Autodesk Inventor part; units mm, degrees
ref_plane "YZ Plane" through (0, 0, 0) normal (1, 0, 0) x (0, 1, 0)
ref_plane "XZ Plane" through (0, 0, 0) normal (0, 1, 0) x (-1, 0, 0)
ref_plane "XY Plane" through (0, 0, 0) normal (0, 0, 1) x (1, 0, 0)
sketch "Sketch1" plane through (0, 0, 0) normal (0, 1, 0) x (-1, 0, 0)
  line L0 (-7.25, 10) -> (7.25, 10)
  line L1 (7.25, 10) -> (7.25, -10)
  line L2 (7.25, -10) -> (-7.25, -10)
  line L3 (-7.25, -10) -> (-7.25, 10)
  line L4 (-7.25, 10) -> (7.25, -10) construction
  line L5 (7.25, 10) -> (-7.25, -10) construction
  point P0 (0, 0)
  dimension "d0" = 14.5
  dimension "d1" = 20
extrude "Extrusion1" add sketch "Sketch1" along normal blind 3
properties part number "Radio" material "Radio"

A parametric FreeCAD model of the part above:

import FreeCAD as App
import Part
import Sketcher

V = App.Vector


def add_polygon(sketch, points):
    """Adds a closed chain of lines whose ends are joined by coincident constraints."""
    first, n = sketch.GeometryCount, len(points)
    for a, b in zip(points, points[1:] + points[:1]):
        sketch.addGeometry(Part.LineSegment(App.Vector(*a, 0), App.Vector(*b, 0)), False)
    for i in range(n):
        sketch.addConstraint(Sketcher.Constraint("Coincident", first + i, 2, first + (i + 1) % n, 1))

doc = App.newDocument("Part")
params = doc.addObject("Spreadsheet::Sheet", "Params")
for row, (alias, value) in enumerate([
    ("sketch1_height", "20 mm"),
    ("sketch1_width", "14.5 mm"),
    ("pad1_length", "3 mm"),
], start=1):
    params.set(f"A{row}", alias)
    params.set(f"B{row}", "=" + value)
    params.setAlias(f"B{row}", alias)

body = doc.addObject("PartDesign::Body", "Body")

# Sketch on XZ plane
sketch1 = body.newObject("Sketcher::SketchObject", "Sketch")
sketch1.AttachmentSupport = (doc.getObject("XZ_Plane"), [""])
sketch1.MapMode = "FlatFace"
add_polygon(sketch1, [(-7, 10), (7, 10), (7, -10), (-7, -10)])  # lines 0-3
sketch1.addConstraint(Sketcher.Constraint("Horizontal", 0))
sketch1.addConstraint(Sketcher.Constraint("Vertical", 1))
sketch1.addConstraint(Sketcher.Constraint("Horizontal", 2))
sketch1.addConstraint(Sketcher.Constraint("Vertical", 3))
sketch1.addConstraint(Sketcher.Constraint("Symmetric", 0, 2, 2, 2, -1, 1))
sketch1.addConstraint(Sketcher.Constraint("DistanceY", 1, 2, 1, 1, 20.0))
sketch1.addConstraint(Sketcher.Constraint("DistanceX", 0, 1, 0, 2, 14.5))
sketch1.setExpression("Constraints[9]", "Params.sketch1_height")
sketch1.setExpression("Constraints[10]", "Params.sketch1_width")
pad1 = body.newObject("PartDesign::Pad", "Pad")
pad1.Profile = sketch1
pad1.setExpression("Length", "Params.pad1_length")
pad1.Reversed = True

doc.recompute()
